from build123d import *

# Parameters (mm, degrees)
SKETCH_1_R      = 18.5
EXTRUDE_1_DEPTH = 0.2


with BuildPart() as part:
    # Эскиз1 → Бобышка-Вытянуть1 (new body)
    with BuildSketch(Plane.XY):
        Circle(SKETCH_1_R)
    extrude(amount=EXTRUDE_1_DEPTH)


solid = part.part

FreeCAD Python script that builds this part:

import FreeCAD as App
import Part
import Sketcher

doc = App.newDocument("Part")
params = doc.addObject("Spreadsheet::Sheet", "Params")
for row, (alias, value) in enumerate([
    ("sketch1_diameter", "37 mm"),
    ("pad1_length", "0.2 mm"),
], start=1):
    params.set(f"A{row}", alias)
    params.set(f"B{row}", "=" + value)
    params.setAlias(f"B{row}", alias)

body = doc.addObject("PartDesign::Body", "Body")

# Sketch on XY plane
sketch1 = body.newObject("Sketcher::SketchObject", "Sketch")
sketch1.AttachmentSupport = (doc.getObject("XY_Plane"), [""])
sketch1.MapMode = "FlatFace"
sketch1.addGeometry(Part.Circle(App.Vector(0, 0, 0), App.Vector(0, 0, 1), 18.5), False)
sketch1.addConstraint([
    Sketcher.Constraint("Coincident", 0, 3, -1, 1),
    Sketcher.Constraint("Diameter", 0, 37.0),
])
sketch1.setExpression("Constraints[1]", "Params.sketch1_diameter")
pad1 = body.newObject("PartDesign::Pad", "Pad")
pad1.Profile = sketch1
pad1.setExpression("Length", "Params.pad1_length")

doc.recompute()
